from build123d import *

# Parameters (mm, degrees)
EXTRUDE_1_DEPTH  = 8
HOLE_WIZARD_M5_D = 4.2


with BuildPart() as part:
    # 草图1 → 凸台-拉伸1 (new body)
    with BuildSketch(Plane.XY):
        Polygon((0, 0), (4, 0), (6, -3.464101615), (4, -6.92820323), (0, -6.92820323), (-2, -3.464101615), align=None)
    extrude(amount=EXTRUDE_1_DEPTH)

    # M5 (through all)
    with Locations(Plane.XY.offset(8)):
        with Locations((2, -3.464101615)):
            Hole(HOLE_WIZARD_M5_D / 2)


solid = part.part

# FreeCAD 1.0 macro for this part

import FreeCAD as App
import Part
import Sketcher

V = App.Vector
Q = App.Units.Quantity


def add_polygon(sketch, points):
    """Adds a closed chain of lines whose ends are joined by coincident constraints."""
    first, n = sketch.GeometryCount, len(points)
    for a, b in zip(points, points[1:] + points[:1]):
        sketch.addGeometry(Part.LineSegment(App.Vector(*a, 0), App.Vector(*b, 0)), False)
    for i in range(n):
        sketch.addConstraint(Sketcher.Constraint("Coincident", first + i, 2, first + (i + 1) % n, 1))

doc = App.newDocument("Part")
body = doc.addObject("PartDesign::Body", "Body")

# Sketch on XY plane
sketch1 = body.newObject("Sketcher::SketchObject", "Sketch")
sketch1.AttachmentSupport = (doc.getObject("XY_Plane"), [""])
sketch1.MapMode = "FlatFace"
add_polygon(sketch1, [(4, 0), (0, 0), (-2, -3.5), (0, -6.9), (4, -6.9), (6, -3.5)])  # lines 0-5
sketch1.addConstraint([
    Sketcher.Constraint("Horizontal", 0),
    Sketcher.Constraint("Horizontal", 3),
    Sketcher.Constraint("Coincident", 0, 2, -1, 1),
    Sketcher.Constraint("PointOnObject", 2, 2, -2),
    Sketcher.Constraint("Parallel", 1, 4),
    Sketcher.Constraint("Parallel", 2, 5),
    Sketcher.Constraint("Horizontal", 1, 2, 4, 2),
    Sketcher.Constraint("Vertical", 3, 2, 5, 2),
    Sketcher.Constraint("DistanceX", 0, 2, 0, 1, Q("4 mm")),
    Sketcher.Constraint("Angle", 1, Q("-120 deg")),
    Sketcher.Constraint("Distance", 1, Q("4 mm")),
])
pad1 = body.newObject("PartDesign::Pad", "Pad")
pad1.Profile = sketch1
pad1.Length = 8

# Sketch on XY plane
sketch2 = body.newObject("Sketcher::SketchObject", "Sketch001")
sketch2.AttachmentSupport = (doc.getObject("XY_Plane"), [""])
sketch2.MapMode = "FlatFace"
sketch2.AttachmentOffset = App.Placement(V(0, 0, 8), App.Rotation())
sketch2.addGeometry(Part.Circle(V(2, -3.5, 0), V(0, 0, 1), 2.1), False)
sketch2.addConstraint([
    Sketcher.Constraint("Diameter", 0, Q("4.2 mm")),
    Sketcher.Constraint("DistanceX", -1, 1, 0, 3, Q("2 mm")),
    Sketcher.Constraint("DistanceY", 0, 3, -1, 1, Q("3.464102 mm")),
])
doc.recompute()
hole = body.newObject("PartDesign::Hole", "Hole")
hole.Profile = sketch2
hole.ThreadType = "None"
hole.Diameter = 4.2
hole.DepthType = "ThroughAll"

doc.recompute()
